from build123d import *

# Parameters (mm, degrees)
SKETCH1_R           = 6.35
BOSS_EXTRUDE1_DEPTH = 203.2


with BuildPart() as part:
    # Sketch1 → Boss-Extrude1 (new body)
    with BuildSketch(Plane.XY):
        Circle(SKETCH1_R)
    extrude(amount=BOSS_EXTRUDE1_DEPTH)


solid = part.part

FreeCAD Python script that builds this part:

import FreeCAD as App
import Part
import Sketcher
from FreeCAD import Vector
Q = App.Units.Quantity

doc = App.newDocument("Part")
body = doc.addObject("PartDesign::Body", "Body")

# Sketch on XY plane
sketch1 = body.newObject("Sketcher::SketchObject", "Sketch")
sketch1.AttachmentSupport = (doc.getObject("XY_Plane"), [""])
sketch1.MapMode = "FlatFace"
sketch1.addGeometry(Part.Circle(Vector(0, 0, 0), Vector(0, 0, 1), 6.35), False)
sketch1.addConstraint(Sketcher.Constraint("Coincident", 0, 3, -1, 1))
sketch1.addConstraint(Sketcher.Constraint("Diameter", 0, Q("0.5 in")))
pad1 = body.newObject("PartDesign::Pad", "Pad")
pad1.Profile = sketch1
pad1.Length = Q("8 in")

doc.recompute()
